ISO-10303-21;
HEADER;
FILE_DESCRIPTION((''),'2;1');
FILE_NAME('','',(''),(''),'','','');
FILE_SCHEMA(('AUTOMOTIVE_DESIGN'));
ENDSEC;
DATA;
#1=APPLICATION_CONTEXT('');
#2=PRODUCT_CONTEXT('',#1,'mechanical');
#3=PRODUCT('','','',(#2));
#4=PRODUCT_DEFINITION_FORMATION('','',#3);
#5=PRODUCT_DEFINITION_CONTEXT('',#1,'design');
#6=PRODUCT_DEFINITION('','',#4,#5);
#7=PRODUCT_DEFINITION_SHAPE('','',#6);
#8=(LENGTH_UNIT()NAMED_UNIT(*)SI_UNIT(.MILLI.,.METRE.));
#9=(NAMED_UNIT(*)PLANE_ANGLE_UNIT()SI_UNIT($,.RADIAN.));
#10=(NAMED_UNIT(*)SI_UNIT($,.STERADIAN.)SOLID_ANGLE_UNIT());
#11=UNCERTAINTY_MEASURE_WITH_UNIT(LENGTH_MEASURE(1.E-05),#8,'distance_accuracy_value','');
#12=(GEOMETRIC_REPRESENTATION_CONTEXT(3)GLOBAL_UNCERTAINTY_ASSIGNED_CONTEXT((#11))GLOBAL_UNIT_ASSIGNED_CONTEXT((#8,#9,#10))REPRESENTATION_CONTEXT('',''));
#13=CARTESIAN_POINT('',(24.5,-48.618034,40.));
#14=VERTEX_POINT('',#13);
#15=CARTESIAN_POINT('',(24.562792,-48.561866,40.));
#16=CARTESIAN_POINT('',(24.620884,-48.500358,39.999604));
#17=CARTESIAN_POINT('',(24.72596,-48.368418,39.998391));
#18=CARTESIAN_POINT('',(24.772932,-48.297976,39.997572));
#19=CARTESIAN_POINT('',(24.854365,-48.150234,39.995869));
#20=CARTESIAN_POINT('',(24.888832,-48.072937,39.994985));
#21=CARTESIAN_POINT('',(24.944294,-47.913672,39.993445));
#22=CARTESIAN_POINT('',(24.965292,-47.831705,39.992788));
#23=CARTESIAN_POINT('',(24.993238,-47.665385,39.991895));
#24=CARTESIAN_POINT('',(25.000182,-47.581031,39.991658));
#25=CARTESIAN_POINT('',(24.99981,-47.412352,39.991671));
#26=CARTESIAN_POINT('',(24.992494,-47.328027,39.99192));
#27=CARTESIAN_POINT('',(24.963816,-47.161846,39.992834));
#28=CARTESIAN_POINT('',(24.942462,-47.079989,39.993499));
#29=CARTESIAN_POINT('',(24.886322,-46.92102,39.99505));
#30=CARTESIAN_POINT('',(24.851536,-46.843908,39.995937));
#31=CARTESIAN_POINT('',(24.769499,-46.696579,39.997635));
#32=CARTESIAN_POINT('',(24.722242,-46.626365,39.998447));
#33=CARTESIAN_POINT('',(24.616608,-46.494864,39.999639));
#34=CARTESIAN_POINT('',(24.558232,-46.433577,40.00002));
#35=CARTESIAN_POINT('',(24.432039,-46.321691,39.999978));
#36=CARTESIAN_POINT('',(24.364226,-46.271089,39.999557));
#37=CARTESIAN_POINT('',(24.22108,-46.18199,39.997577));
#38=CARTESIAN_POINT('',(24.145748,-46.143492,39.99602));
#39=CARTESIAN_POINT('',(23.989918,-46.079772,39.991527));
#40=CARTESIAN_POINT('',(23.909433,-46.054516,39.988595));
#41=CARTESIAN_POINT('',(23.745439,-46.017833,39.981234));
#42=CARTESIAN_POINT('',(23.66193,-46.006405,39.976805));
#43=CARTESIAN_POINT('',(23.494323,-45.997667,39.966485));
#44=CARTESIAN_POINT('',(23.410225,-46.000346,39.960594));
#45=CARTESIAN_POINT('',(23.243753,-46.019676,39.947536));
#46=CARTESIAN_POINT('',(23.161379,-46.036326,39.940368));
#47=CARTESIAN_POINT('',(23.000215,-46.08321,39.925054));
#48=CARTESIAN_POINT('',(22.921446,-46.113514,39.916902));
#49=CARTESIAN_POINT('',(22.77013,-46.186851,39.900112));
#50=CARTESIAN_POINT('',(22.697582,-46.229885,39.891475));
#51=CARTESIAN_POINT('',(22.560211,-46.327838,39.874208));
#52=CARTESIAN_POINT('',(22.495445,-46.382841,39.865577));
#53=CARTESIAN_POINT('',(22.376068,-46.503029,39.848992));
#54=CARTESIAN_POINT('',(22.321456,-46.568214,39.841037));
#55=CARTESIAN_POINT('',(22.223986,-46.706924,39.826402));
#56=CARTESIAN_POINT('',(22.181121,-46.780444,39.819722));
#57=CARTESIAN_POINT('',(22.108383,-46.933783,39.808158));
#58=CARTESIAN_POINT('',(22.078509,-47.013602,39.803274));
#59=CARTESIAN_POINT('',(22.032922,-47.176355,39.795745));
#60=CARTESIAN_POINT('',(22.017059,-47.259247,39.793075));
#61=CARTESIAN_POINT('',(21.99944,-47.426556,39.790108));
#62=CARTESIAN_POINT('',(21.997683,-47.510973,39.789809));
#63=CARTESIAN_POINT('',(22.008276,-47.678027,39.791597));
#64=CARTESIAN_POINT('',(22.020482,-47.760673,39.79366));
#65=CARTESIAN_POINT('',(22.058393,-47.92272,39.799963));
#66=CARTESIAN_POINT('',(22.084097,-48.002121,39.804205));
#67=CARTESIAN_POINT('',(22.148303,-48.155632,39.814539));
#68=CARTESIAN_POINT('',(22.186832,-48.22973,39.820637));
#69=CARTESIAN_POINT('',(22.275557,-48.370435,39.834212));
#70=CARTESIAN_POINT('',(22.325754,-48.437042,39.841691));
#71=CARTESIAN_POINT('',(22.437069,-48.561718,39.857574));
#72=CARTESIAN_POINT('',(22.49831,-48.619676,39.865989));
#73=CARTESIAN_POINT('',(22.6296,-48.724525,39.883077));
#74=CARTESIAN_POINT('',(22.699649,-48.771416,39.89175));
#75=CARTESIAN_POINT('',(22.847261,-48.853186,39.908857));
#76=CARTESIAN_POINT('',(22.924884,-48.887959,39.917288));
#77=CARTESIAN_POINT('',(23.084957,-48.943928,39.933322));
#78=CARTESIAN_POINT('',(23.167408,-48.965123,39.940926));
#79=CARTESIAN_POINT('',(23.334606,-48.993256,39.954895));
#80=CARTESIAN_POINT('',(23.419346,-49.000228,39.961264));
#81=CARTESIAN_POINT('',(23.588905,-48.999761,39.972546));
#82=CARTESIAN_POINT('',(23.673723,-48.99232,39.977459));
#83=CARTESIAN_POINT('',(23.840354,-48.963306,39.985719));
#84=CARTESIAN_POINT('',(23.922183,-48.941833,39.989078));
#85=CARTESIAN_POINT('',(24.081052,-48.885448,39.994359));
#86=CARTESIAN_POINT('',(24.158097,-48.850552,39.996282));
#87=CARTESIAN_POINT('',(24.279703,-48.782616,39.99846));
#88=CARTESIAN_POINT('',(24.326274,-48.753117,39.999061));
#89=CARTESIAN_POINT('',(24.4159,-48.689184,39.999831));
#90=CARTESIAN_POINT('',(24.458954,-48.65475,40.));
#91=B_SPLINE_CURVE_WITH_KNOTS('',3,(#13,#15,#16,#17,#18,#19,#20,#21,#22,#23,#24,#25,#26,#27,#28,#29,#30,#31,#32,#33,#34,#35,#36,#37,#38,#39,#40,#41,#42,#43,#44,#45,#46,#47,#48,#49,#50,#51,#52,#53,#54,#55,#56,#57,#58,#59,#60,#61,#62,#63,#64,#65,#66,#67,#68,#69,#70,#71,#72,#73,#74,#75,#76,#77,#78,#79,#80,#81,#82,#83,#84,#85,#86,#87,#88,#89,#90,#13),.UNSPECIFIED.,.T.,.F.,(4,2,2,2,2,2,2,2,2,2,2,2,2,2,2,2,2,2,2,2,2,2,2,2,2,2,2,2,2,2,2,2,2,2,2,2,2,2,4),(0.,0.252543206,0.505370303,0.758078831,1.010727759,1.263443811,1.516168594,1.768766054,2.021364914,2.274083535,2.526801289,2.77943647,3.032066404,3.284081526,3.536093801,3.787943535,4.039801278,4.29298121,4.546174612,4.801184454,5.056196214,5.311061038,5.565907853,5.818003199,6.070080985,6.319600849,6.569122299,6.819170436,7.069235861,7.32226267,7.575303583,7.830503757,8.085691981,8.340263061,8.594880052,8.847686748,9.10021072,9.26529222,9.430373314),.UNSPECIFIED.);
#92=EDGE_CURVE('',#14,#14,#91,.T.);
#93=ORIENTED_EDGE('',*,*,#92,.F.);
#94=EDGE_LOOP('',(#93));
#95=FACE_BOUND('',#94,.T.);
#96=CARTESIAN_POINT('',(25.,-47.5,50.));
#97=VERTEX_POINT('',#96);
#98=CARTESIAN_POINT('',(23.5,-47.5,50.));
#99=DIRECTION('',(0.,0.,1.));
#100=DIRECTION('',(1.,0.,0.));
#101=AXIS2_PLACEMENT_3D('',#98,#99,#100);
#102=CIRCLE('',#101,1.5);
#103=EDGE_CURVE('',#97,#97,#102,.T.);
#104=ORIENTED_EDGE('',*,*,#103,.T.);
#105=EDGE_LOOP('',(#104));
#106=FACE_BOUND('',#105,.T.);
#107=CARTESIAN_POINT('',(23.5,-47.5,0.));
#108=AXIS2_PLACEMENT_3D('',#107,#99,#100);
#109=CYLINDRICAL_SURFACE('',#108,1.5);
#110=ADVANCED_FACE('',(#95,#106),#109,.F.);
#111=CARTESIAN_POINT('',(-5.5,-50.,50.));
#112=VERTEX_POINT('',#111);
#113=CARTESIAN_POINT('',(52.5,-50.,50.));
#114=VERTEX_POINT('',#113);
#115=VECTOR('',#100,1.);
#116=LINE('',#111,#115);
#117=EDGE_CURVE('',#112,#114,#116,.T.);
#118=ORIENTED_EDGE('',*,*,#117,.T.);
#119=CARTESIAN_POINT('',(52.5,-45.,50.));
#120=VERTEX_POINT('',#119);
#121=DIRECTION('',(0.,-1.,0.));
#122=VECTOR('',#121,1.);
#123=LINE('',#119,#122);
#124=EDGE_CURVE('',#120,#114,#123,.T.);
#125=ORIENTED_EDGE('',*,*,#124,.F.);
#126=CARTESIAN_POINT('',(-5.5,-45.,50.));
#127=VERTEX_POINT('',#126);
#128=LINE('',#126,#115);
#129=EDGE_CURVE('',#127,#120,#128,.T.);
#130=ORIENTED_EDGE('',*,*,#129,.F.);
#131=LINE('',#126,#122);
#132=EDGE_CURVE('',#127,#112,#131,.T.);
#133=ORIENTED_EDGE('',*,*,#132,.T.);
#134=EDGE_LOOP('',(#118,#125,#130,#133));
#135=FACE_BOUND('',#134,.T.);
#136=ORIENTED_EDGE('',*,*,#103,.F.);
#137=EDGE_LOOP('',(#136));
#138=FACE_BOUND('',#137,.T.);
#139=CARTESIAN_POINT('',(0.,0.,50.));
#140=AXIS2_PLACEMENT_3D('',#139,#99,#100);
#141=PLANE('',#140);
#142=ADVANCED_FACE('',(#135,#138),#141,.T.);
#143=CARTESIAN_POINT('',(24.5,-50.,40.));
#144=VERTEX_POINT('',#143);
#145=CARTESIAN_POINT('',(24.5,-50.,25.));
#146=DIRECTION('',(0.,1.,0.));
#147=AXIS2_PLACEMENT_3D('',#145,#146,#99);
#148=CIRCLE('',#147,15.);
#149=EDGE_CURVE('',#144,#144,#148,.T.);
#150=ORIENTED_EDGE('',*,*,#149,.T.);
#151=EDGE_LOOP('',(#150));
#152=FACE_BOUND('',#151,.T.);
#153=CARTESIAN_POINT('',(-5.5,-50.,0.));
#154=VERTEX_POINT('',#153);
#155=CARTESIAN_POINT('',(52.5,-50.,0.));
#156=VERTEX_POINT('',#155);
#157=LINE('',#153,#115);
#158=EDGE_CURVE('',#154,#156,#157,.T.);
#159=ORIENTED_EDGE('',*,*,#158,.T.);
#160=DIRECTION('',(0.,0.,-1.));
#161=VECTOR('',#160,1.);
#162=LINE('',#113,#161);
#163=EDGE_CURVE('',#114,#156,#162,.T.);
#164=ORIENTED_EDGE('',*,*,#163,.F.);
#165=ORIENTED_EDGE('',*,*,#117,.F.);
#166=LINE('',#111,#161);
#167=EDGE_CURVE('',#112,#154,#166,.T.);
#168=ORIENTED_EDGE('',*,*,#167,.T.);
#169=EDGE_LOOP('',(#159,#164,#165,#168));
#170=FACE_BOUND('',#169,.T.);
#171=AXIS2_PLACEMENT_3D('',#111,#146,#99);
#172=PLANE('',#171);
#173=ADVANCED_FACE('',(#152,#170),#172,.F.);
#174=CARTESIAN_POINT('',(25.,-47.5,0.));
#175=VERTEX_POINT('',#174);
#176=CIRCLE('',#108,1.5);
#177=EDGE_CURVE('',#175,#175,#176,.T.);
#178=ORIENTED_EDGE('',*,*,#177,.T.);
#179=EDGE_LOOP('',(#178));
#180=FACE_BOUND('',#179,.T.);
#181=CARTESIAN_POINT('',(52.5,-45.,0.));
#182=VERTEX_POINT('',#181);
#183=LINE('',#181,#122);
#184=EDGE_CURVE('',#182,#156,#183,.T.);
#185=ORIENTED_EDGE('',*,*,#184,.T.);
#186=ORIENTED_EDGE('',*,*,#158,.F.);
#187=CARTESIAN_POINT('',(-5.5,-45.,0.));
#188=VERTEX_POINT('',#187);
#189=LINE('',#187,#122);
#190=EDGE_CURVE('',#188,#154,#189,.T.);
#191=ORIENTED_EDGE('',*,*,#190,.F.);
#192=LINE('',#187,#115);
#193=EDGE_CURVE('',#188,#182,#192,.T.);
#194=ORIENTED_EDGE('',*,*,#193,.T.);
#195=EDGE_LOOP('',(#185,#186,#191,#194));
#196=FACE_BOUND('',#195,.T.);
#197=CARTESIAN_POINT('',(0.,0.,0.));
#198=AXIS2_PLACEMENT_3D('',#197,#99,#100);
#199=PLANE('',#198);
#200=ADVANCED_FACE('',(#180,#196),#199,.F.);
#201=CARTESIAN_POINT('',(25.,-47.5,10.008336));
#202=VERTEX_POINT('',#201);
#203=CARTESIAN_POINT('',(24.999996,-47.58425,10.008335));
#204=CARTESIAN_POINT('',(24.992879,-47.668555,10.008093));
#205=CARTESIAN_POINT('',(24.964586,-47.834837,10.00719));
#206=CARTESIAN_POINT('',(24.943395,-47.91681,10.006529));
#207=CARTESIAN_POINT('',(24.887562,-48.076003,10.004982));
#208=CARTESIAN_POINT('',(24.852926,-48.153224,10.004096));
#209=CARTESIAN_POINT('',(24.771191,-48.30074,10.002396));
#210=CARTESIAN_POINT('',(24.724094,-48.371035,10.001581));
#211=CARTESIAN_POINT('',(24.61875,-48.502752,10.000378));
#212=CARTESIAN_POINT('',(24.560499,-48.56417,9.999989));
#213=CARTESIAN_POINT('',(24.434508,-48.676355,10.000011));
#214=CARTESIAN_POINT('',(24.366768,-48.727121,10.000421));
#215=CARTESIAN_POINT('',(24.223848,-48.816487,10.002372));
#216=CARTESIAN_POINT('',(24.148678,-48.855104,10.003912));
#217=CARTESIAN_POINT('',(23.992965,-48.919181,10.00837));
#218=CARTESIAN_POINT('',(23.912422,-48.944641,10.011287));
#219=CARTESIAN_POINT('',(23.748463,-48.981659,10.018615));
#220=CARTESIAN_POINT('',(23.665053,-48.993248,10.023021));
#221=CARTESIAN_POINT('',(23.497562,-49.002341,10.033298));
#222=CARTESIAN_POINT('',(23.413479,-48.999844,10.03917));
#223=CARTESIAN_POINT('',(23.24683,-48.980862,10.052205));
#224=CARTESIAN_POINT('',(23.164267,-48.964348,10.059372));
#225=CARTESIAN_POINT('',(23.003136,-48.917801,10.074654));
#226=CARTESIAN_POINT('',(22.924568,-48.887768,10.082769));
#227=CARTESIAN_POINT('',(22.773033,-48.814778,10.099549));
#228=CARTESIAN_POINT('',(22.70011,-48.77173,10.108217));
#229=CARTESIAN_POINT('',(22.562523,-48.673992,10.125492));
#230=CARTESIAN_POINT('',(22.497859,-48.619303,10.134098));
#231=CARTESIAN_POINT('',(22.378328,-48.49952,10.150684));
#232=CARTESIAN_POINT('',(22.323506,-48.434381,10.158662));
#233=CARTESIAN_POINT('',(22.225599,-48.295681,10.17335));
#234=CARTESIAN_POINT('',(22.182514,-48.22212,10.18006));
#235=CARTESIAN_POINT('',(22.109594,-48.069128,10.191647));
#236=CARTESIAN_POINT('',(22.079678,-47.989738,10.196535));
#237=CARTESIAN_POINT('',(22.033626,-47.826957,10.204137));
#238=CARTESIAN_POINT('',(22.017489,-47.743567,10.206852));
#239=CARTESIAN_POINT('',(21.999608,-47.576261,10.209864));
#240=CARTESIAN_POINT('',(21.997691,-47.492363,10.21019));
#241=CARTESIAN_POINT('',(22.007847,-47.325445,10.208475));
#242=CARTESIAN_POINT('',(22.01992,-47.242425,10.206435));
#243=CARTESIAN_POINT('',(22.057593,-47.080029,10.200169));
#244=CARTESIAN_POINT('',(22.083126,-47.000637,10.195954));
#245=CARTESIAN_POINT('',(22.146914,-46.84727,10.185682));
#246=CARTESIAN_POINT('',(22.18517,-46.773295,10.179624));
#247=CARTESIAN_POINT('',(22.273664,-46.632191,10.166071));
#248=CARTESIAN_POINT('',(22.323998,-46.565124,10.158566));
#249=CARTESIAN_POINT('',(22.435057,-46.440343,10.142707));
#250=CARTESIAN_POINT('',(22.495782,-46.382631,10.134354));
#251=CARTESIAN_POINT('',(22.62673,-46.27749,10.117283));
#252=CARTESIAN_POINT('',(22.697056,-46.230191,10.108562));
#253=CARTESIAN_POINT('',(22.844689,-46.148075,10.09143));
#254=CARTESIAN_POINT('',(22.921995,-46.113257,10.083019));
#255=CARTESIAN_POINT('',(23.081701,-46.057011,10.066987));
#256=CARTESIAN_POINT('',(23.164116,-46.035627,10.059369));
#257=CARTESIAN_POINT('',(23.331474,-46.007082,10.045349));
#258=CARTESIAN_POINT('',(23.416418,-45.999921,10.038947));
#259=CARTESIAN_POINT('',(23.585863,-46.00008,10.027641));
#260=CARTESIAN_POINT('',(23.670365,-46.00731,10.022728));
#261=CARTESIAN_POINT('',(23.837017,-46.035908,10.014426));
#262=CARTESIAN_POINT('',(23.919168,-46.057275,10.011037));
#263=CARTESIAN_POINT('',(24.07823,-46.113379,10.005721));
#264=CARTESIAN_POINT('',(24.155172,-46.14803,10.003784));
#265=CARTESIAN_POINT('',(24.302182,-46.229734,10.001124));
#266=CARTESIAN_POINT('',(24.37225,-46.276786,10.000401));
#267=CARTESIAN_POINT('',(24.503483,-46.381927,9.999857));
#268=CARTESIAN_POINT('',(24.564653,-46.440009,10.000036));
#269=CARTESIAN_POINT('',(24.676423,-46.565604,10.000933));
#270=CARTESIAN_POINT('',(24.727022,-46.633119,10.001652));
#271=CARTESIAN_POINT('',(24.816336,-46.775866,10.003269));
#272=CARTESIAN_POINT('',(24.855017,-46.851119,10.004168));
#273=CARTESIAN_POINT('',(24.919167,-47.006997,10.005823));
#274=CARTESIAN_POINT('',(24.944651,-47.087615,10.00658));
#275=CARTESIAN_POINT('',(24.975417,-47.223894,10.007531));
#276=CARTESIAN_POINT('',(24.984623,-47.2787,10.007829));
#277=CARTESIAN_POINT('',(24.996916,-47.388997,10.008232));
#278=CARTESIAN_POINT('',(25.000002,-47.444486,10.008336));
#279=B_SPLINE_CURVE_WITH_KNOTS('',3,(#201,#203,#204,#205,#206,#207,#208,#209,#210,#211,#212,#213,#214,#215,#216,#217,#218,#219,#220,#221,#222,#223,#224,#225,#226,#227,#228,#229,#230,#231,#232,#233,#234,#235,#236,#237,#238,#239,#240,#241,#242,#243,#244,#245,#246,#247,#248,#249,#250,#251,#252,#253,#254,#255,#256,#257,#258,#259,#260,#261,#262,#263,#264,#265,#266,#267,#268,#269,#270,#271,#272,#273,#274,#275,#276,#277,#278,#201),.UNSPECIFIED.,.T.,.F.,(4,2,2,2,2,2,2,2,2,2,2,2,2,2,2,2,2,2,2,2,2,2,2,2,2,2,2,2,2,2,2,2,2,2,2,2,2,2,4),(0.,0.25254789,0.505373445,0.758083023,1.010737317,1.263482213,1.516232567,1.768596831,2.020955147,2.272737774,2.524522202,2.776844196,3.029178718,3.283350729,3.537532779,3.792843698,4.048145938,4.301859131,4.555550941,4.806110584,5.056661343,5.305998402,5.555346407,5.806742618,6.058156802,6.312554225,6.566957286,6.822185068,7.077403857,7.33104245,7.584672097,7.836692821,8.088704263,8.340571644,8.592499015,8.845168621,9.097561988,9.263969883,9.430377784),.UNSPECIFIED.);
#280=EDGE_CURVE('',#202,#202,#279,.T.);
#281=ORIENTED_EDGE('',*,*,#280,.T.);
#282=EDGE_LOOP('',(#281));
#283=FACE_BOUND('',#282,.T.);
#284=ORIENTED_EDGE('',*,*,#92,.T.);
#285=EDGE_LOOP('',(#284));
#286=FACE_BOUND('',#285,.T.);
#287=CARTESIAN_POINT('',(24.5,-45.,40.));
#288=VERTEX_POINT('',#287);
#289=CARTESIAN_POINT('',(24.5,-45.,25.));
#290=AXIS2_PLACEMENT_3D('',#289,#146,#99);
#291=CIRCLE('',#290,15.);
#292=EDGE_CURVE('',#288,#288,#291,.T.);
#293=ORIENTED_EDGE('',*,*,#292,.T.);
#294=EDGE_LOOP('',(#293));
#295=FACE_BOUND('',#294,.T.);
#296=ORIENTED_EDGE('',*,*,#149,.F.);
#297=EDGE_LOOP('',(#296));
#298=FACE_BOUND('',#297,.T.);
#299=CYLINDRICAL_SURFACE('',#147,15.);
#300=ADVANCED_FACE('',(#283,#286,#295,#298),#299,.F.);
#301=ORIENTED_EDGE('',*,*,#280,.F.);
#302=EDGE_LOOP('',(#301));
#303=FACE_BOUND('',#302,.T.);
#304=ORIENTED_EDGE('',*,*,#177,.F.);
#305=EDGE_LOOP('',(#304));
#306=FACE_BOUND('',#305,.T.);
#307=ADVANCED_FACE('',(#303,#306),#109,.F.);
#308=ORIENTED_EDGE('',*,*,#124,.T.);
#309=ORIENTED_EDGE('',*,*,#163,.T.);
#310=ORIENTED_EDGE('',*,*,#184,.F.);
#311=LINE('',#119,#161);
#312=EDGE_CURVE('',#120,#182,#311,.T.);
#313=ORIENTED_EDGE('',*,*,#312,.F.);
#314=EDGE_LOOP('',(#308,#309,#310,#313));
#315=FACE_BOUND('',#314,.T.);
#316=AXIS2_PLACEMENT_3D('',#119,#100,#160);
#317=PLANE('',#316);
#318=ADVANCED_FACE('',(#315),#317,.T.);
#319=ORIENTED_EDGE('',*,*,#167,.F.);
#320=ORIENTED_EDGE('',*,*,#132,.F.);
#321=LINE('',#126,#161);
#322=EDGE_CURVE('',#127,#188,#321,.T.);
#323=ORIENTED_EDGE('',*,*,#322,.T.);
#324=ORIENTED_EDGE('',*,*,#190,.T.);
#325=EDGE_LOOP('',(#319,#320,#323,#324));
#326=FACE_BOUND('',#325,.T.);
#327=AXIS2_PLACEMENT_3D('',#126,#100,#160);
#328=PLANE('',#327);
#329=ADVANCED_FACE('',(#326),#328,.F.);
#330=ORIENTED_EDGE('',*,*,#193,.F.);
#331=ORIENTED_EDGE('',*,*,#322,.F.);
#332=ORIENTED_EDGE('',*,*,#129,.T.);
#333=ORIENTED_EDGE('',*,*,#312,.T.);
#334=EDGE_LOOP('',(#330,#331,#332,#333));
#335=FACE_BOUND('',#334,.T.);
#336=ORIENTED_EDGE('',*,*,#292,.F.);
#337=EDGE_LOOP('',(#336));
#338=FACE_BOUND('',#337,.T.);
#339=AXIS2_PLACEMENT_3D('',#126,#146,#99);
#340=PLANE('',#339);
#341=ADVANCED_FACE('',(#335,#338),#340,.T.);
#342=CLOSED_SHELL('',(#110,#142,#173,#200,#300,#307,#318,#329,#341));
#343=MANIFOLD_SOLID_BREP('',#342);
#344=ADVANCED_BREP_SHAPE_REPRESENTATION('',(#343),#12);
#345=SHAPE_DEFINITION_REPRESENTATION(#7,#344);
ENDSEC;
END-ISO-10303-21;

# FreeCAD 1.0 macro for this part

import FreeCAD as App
import Part
import Sketcher
from FreeCAD import Vector
Q = App.Units.Quantity

doc = App.newDocument("Part")
body = doc.addObject("PartDesign::Body", "Body")

# Sketch on XY plane
sketch1 = doc.addObject("Sketcher::SketchObject", "Sketch")
body.addObject(sketch1)
sketch1.AttachmentSupport = (doc.XY_Plane, [""])
sketch1.MapMode = "FlatFace"
sketch1.addGeometry([
    Part.LineSegment(Vector(-6, -45, 0), Vector(-6, -50, 0)),
    Part.LineSegment(Vector(-6, -50, 0), Vector(52, -50, 0)),
    Part.LineSegment(Vector(52, -50, 0), Vector(52, -45, 0)),
    Part.LineSegment(Vector(52, -45, 0), Vector(-6, -45, 0)),
], False)
sketch1.addConstraint([
    Sketcher.Constraint("Coincident", 0, 2, 1, 1),
    Sketcher.Constraint("Coincident", 1, 2, 2, 1),
    Sketcher.Constraint("Coincident", 2, 2, 3, 1),
    Sketcher.Constraint("Coincident", 3, 2, 0, 1),
    Sketcher.Constraint("Vertical", 0),
    Sketcher.Constraint("Horizontal", 1),
    Sketcher.Constraint("Vertical", 2),
    Sketcher.Constraint("Horizontal", 3),
    Sketcher.Constraint("DistanceX", 1, 1, 1, 2, Q("58 mm")),
    Sketcher.Constraint("DistanceY", 0, 2, 0, 1, Q("5 mm")),
    Sketcher.Constraint("DistanceY", 0, 2, -1, 1, Q("50 mm")),
    Sketcher.Constraint("DistanceX", 0, 2, -1, 1, Q("5.5 mm")),
])
pad1 = doc.addObject("PartDesign::Pad", "Pad")
body.addObject(pad1)
pad1.Profile = sketch1
pad1.Length = 50

# Sketch on XZ plane
sketch2 = doc.addObject("Sketcher::SketchObject", "Sketch001")
body.addObject(sketch2)
sketch2.AttachmentSupport = (doc.XZ_Plane, [""])
sketch2.MapMode = "FlatFace"
sketch2.AttachmentOffset = App.Placement(Vector(0, 0, 45), App.Rotation())
sketch2.addGeometry(Part.Circle(Vector(24, 25, 0), Vector(0, 0, 1), 15), False)
sketch2.addConstraint([
    Sketcher.Constraint("Diameter", 0, Q("30 mm")),
    Sketcher.Constraint("DistanceY", -1, 1, 0, 3, Q("25 mm")),
    Sketcher.Constraint("DistanceX", -1, 1, 0, 3, Q("24.5 mm")),
])
pocket1 = doc.addObject("PartDesign::Pocket", "Pocket")
body.addObject(pocket1)
pocket1.Profile = sketch2
pocket1.Type = "ThroughAll"
pocket1.Reversed = True

# Sketch on XY plane
sketch3 = doc.addObject("Sketcher::SketchObject", "Sketch002")
body.addObject(sketch3)
sketch3.AttachmentSupport = (doc.XY_Plane, [""])
sketch3.MapMode = "FlatFace"
sketch3.AttachmentOffset = App.Placement(Vector(0, 0, 50), App.Rotation())
sketch3.addGeometry(Part.Circle(Vector(23.5, -47.5, 0), Vector(0, 0, 1), 1.5), False)
sketch3.addConstraint([
    Sketcher.Constraint("Diameter", 0, Q("3 mm")),
    Sketcher.Constraint("DistanceX", -1, 1, 0, 3, Q("23.5 mm")),
    Sketcher.Constraint("DistanceY", 0, 3, -1, 1, Q("47.5 mm")),
])
pocket2 = doc.addObject("PartDesign::Pocket", "Pocket001")
body.addObject(pocket2)
pocket2.Profile = sketch3
pocket2.Type = "ThroughAll"

doc.recompute()
